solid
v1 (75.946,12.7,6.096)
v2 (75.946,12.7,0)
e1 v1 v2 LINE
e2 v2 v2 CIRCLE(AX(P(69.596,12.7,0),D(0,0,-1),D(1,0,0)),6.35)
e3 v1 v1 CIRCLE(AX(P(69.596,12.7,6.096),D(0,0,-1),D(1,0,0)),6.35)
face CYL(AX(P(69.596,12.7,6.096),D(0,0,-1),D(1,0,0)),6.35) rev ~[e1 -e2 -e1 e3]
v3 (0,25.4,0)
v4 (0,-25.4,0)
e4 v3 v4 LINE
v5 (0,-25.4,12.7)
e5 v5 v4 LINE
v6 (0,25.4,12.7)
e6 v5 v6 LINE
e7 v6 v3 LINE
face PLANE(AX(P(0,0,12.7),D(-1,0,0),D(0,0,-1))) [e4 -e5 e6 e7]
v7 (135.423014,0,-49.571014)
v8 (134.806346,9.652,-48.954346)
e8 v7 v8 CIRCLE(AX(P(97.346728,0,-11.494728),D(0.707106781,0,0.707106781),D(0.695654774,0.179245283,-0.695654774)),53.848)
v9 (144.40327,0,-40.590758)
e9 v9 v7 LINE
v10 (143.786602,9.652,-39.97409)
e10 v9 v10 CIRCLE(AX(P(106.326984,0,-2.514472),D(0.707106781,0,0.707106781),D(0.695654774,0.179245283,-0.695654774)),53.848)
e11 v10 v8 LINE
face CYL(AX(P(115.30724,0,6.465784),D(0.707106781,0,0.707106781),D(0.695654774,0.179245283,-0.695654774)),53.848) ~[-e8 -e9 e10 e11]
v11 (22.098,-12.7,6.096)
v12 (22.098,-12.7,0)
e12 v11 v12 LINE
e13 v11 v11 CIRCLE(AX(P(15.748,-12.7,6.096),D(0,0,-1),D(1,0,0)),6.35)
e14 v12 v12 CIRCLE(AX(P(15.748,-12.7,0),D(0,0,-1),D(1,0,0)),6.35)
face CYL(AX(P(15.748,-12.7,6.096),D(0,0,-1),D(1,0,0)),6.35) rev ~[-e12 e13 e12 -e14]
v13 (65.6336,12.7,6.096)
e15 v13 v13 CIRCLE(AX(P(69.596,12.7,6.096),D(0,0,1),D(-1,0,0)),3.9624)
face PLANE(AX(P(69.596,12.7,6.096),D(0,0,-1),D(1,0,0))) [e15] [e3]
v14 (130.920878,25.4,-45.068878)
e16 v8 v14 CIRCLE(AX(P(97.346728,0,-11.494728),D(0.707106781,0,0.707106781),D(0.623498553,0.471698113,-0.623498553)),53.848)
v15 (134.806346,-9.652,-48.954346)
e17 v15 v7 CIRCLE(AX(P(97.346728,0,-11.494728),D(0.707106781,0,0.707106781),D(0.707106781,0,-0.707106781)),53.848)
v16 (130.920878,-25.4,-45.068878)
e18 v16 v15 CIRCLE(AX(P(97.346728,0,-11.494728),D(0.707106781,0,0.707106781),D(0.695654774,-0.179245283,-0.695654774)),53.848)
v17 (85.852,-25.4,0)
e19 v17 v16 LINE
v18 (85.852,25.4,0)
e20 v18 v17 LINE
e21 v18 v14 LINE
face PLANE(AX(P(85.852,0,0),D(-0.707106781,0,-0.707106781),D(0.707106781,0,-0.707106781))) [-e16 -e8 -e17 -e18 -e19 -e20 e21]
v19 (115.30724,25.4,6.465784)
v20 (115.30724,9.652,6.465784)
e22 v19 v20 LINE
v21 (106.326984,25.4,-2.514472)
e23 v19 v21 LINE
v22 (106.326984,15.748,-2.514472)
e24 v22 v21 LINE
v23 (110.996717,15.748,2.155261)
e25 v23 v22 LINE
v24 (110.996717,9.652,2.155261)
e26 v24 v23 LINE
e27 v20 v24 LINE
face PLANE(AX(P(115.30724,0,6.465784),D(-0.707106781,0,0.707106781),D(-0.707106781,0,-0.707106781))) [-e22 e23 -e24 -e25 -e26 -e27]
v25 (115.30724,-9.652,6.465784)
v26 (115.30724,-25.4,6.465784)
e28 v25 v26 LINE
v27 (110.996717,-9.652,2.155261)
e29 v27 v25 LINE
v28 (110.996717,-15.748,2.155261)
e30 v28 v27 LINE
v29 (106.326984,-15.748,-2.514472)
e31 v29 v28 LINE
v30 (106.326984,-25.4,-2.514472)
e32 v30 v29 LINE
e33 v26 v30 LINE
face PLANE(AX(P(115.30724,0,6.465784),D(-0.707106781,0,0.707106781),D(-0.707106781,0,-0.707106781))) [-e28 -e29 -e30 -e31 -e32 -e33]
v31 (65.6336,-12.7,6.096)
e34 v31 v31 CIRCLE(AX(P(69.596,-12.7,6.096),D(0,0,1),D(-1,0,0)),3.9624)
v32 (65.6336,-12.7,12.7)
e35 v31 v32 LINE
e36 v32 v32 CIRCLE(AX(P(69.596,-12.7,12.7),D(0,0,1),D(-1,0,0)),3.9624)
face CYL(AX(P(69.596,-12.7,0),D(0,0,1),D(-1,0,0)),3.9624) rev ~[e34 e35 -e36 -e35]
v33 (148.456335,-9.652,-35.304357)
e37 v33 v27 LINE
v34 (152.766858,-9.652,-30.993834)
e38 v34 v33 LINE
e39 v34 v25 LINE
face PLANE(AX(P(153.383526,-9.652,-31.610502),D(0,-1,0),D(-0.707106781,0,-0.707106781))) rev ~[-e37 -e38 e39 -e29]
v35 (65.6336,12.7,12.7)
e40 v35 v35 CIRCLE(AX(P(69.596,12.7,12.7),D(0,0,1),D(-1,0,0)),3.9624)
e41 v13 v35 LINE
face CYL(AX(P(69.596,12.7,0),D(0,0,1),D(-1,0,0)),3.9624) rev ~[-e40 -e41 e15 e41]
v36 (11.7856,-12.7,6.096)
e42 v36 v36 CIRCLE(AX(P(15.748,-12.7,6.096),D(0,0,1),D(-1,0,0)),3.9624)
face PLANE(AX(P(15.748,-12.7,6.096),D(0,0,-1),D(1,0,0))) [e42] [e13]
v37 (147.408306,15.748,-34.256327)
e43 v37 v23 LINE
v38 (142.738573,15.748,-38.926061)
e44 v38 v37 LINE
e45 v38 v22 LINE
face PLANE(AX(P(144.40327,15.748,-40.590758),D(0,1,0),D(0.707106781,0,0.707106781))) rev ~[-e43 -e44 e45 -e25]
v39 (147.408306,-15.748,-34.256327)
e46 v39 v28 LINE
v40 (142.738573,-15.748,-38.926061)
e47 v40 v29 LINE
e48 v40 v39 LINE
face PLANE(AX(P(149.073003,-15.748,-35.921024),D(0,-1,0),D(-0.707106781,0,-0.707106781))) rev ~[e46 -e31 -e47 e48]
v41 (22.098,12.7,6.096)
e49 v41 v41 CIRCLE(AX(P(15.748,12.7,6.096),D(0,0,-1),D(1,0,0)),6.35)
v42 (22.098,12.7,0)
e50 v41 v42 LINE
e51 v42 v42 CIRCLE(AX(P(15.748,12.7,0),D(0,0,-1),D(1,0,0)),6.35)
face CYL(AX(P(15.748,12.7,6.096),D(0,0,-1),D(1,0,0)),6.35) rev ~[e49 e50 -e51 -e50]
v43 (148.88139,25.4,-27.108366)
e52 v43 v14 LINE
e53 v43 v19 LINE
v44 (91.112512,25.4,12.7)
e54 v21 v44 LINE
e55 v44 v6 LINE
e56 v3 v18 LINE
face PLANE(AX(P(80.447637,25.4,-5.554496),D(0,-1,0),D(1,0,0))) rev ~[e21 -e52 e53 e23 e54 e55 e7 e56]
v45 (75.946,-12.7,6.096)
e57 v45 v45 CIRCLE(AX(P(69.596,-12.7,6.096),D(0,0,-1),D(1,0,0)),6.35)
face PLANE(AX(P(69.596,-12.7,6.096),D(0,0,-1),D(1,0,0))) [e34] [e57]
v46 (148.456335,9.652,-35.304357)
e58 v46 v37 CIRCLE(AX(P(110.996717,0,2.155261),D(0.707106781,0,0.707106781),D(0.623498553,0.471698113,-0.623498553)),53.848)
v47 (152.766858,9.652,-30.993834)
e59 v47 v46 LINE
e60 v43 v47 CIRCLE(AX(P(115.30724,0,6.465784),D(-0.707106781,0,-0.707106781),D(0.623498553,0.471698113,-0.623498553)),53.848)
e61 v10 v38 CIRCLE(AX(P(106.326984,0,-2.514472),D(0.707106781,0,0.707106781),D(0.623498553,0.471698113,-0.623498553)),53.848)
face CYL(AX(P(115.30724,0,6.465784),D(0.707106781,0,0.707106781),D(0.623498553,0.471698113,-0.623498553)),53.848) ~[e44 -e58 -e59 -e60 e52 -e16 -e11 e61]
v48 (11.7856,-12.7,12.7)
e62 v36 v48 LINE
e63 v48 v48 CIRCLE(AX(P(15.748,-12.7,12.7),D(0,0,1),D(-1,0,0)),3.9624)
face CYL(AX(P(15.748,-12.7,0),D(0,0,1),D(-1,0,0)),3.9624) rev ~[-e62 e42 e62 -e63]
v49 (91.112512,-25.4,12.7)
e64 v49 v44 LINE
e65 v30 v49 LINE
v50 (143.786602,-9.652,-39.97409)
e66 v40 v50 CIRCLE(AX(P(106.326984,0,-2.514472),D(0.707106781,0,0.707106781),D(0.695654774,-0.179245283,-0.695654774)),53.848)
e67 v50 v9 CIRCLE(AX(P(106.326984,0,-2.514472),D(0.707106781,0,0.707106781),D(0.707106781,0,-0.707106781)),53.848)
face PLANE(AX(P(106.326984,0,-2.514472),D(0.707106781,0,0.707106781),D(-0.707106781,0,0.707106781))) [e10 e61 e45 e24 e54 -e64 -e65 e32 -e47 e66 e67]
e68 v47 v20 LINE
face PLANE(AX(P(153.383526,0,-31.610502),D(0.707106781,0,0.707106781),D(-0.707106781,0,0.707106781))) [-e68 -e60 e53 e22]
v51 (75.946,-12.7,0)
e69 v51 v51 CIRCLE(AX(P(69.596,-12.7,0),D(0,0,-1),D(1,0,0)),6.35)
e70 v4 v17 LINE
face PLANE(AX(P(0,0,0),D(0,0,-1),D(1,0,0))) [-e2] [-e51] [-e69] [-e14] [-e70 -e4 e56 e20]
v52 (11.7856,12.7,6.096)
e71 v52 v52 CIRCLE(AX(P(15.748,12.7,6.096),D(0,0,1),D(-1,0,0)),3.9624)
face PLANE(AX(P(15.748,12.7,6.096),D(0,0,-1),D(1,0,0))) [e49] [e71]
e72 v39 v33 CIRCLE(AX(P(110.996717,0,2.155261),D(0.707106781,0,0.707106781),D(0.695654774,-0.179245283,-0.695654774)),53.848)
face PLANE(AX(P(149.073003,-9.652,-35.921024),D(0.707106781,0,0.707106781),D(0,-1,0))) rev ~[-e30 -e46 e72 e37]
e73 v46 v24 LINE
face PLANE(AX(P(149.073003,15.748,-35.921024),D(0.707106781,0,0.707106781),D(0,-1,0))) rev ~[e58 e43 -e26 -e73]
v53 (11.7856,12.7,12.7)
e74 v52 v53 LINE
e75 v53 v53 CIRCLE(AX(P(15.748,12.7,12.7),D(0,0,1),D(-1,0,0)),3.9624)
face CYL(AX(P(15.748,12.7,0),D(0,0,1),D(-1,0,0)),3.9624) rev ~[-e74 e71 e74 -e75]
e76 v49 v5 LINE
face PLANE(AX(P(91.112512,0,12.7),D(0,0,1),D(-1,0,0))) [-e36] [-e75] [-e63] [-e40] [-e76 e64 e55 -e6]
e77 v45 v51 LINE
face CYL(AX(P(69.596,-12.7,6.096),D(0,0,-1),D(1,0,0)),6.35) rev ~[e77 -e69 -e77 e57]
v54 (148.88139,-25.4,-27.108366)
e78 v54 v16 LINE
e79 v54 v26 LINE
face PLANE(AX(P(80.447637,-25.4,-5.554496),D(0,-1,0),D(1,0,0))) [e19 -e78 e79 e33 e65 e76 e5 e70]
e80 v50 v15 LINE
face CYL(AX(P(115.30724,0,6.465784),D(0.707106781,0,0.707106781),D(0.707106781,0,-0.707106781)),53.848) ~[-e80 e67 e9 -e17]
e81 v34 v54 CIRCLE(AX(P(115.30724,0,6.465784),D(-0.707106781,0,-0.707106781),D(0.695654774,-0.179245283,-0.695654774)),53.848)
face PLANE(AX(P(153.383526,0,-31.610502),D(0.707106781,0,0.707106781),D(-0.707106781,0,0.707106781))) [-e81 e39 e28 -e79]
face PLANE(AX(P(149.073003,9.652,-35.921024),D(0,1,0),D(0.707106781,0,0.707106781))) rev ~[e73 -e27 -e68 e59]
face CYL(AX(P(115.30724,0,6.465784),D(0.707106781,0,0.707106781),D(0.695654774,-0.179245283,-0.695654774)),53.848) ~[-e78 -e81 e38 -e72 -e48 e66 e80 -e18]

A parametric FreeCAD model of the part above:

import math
import FreeCAD as App
import Part
import Sketcher
Q = App.Units.Quantity

doc = App.newDocument("Part")
body = doc.addObject("PartDesign::Body", "Body")

sketch1 = body.newObject("Sketcher::SketchObject", "Sketch")
sketch1.AttachmentSupport = (doc.getObject("XZ_Plane"), [""])
sketch1.MapMode = "FlatFace"
sketch1.addGeometry([
    Part.LineSegment(App.Vector(0, 12.7, 0), App.Vector(0, 0, 0)),
    Part.LineSegment(App.Vector(0, 0, 0), App.Vector(85.852, 0, 0)),
    Part.LineSegment(App.Vector(85.852, 0, 0), App.Vector(135.423014, -49.571014, 0)),
    Part.LineSegment(App.Vector(135.423014, -49.571014, 0), App.Vector(153.383526, -31.610502, 0)),
    Part.LineSegment(App.Vector(153.383526, -31.610502, 0), App.Vector(115.30724, 6.465784, 0)),
    Part.LineSegment(App.Vector(115.30724, 6.465784, 0), App.Vector(106.326984, -2.514472, 0)),
    Part.LineSegment(App.Vector(106.326984, -2.514472, 0), App.Vector(91.112512, 12.7, 0)),
    Part.LineSegment(App.Vector(91.112512, 12.7, 0), App.Vector(0, 12.7, 0)),
], False)
sketch1.addConstraint([
    Sketcher.Constraint("Coincident", 0, 2, 1, 1),
    Sketcher.Constraint("Coincident", 1, 2, 2, 1),
    Sketcher.Constraint("Coincident", 2, 2, 3, 1),
    Sketcher.Constraint("Coincident", 3, 2, 4, 1),
    Sketcher.Constraint("Coincident", 4, 2, 5, 1),
    Sketcher.Constraint("Coincident", 5, 2, 6, 1),
    Sketcher.Constraint("Coincident", 6, 2, 7, 1),
    Sketcher.Constraint("Coincident", 7, 2, 0, 1),
    Sketcher.Constraint("Vertical", 0),
    Sketcher.Constraint("Horizontal", 1),
    Sketcher.Constraint("Horizontal", 7),
    Sketcher.Constraint("Coincident", 0, 2, -1, 1),
    Sketcher.Constraint("Perpendicular", 2, 3),
    Sketcher.Constraint("Perpendicular", 3, 4),
    Sketcher.Constraint("Perpendicular", 4, 5),
    Sketcher.Constraint("Perpendicular", 5, 6),
    Sketcher.Constraint("Distance", 3, Q("1 in")),
    Sketcher.Constraint("DistanceY", 0, 2, 0, 1, Q("0.5 in")),
    Sketcher.Constraint("Angle", 2, Q("-45 deg")),
    Sketcher.Constraint("Distance", 5, Q("0.5 in")),
    Sketcher.Constraint("DistanceX", 1, 1, 1, 2, Q("3.38 in")),
    Sketcher.Constraint("Distance", 2, Q("2.76 in")),
    Sketcher.Constraint("Distance", 4, Q("2.12 in")),
])
pad1 = body.newObject("PartDesign::Pad", "Pad")
pad1.Profile = sketch1
pad1.Length = Q("2 in")
pad1.Midplane = True

sketch2 = body.newObject("Sketcher::SketchObject", "Sketch001")
sketch2.AttachmentSupport = (doc.getObject("XY_Plane"), [""])
sketch2.MapMode = "FlatFace"
sketch2.addGeometry([
    Part.Circle(App.Vector(15.748, -12.7, 0), App.Vector(0, 0, 1), 3.9624),
    Part.Circle(App.Vector(15.748, 12.7, 0), App.Vector(0, 0, 1), 3.9624),
    Part.Circle(App.Vector(69.596, -12.7, 0), App.Vector(0, 0, 1), 3.9624),
    Part.Circle(App.Vector(69.596, 12.7, 0), App.Vector(0, 0, 1), 3.9624),
], False)
sketch2.addConstraint([
    Sketcher.Constraint("Equal", 0, 1),
    Sketcher.Constraint("Equal", 1, 2),
    Sketcher.Constraint("Equal", 2, 3),
    Sketcher.Constraint("Symmetric", 0, 3, 1, 3, -1),
    Sketcher.Constraint("Symmetric", 2, 3, 3, 3, -1),
    Sketcher.Constraint("Horizontal", 0, 3, 2, 3),
    Sketcher.Constraint("Diameter", 0, Q("0.312 in")),
    Sketcher.Constraint("DistanceY", 0, 3, 1, 3, Q("1 in")),
    Sketcher.Constraint("DistanceX", -1, 1, 0, 3, Q("0.62 in")),
    Sketcher.Constraint("DistanceX", -1, 1, 2, 3, Q("2.74 in")),
])
doc.recompute()
hole = body.newObject("PartDesign::Hole", "Hole")
hole.Profile = sketch2
hole.ThreadType = "None"
hole.Diameter = Q("0.312 in")
hole.DepthType = "ThroughAll"
hole.HoleCutType = "Counterbore"
hole.HoleCutDiameter = Q("0.5 in")
hole.HoleCutDepth = Q("0.24 in")
hole.Reversed = True

sketch3 = body.newObject("Sketcher::SketchObject", "Sketch002")
sketch3.Placement = App.Placement(App.Vector(92.497014, 0, -92.497014), App.Rotation(App.Vector(0, 1, 0), App.Vector(0.707106781, 0, 0.707106781), App.Vector(0.707106781, 0, -0.707106781), "ZXY"))
sketch3.addGeometry([
    Part.LineSegment(App.Vector(9.652, 86.106531, 0), App.Vector(-9.652, 86.106531, 0)),
    Part.LineSegment(App.Vector(-9.652, 86.106531, 0), App.Vector(-9.652, 80.010531, 0)),
    Part.LineSegment(App.Vector(-9.652, 80.010531, 0), App.Vector(-15.748, 80.010531, 0)),
    Part.LineSegment(App.Vector(-15.748, 80.010531, 0), App.Vector(-15.748, 73.406531, 0)),
    Part.LineSegment(App.Vector(-15.748, 73.406531, 0), App.Vector(15.748, 73.406531, 0)),
    Part.LineSegment(App.Vector(15.748, 73.406531, 0), App.Vector(15.748, 80.010531, 0)),
    Part.LineSegment(App.Vector(15.748, 80.010531, 0), App.Vector(9.652, 80.010531, 0)),
    Part.LineSegment(App.Vector(9.652, 80.010531, 0), App.Vector(9.652, 86.106531, 0)),
], False)
sketch3.addConstraint([
    Sketcher.Constraint("Coincident", 0, 2, 1, 1),
    Sketcher.Constraint("Coincident", 1, 2, 2, 1),
    Sketcher.Constraint("Coincident", 2, 2, 3, 1),
    Sketcher.Constraint("Coincident", 3, 2, 4, 1),
    Sketcher.Constraint("Coincident", 4, 2, 5, 1),
    Sketcher.Constraint("Coincident", 5, 2, 6, 1),
    Sketcher.Constraint("Coincident", 6, 2, 7, 1),
    Sketcher.Constraint("Coincident", 7, 2, 0, 1),
    Sketcher.Constraint("Horizontal", 0),
    Sketcher.Constraint("Vertical", 1),
    Sketcher.Constraint("Horizontal", 2),
    Sketcher.Constraint("Vertical", 3),
    Sketcher.Constraint("Horizontal", 4),
    Sketcher.Constraint("Vertical", 5),
    Sketcher.Constraint("Horizontal", 6),
    Sketcher.Constraint("Vertical", 7),
    Sketcher.Constraint("Symmetric", 2, 2, 5, 2, -2),
    Sketcher.Constraint("Equal", 2, 6),
    Sketcher.Constraint("Equal", 6, 1),
    Sketcher.Constraint("DistanceX", 1, 2, 4, 2, Q("1 in")),
    Sketcher.Constraint("DistanceX", 0, 2, 0, 1, Q("0.76 in")),
    Sketcher.Constraint("DistanceY", 3, 2, 3, 1, Q("0.26 in")),
    Sketcher.Constraint("DistanceY", -1, 1, 0, 2, Q("86.106531 mm")),
])
pocket1 = body.newObject("PartDesign::Pocket", "Pocket")
pocket1.Profile = sketch3
pocket1.Type = "ThroughAll"

sketch4 = body.newObject("Sketcher::SketchObject", "Sketch003")
sketch4.Placement = App.Placement(App.Vector(60.886512, 0, 60.886512), App.Rotation(App.Vector(0.707106781, 0, -0.707106781), App.Vector(0, 0.999999999, 0), App.Vector(0.707106781, 0, 0.707106781), "ZXY"))
sketch4.addGeometry([
    Part.ArcOfCircle(Part.Circle(App.Vector(76.962531, 0, 0), App.Vector(0, 0, 1), 53.848), math.radians(-28.144581), math.radians(-10.325803)),
    Part.LineSegment(App.Vector(124.44355, -25.4, 0), App.Vector(130.810531, -25.4, 0)),
    Part.LineSegment(App.Vector(130.810531, -25.4, 0), App.Vector(130.810531, 0, 0)),
    Part.ArcOfCircle(Part.Circle(App.Vector(76.962531, 0, 0), App.Vector(0, 0, 1), 53.848), math.radians(-10.325803), math.radians(0)),
    Part.LineSegment(App.Vector(130.810531, 25.4, 0), App.Vector(124.44355, 25.4, 0)),
    Part.ArcOfCircle(Part.Circle(App.Vector(76.962531, 0, 0), App.Vector(0, 0, 1), 53.848), math.radians(10.325803), math.radians(28.144581)),
    Part.ArcOfCircle(Part.Circle(App.Vector(76.962531, 0, 0), App.Vector(0, 0, 1), 53.848), math.radians(0), math.radians(10.325803)),
    Part.LineSegment(App.Vector(130.810531, 0, 0), App.Vector(130.810531, 25.4, 0)),
], False)
sketch4.addConstraint([
    Sketcher.Constraint("Coincident", 0, 1, 1, 1),
    Sketcher.Constraint("Coincident", 1, 2, 2, 1),
    Sketcher.Constraint("Tangent", 2, 2, 3, 2),
    Sketcher.Constraint("Tangent", 3, 1, 0, 2),
    Sketcher.Constraint("Coincident", 4, 2, 5, 2),
    Sketcher.Constraint("Tangent", 5, 1, 6, 2),
    Sketcher.Constraint("Tangent", 6, 1, 7, 1),
    Sketcher.Constraint("Coincident", 7, 2, 4, 1),
    Sketcher.Constraint("Horizontal", 1),
    Sketcher.Constraint("Vertical", 2),
    Sketcher.Constraint("Horizontal", 4),
    Sketcher.Constraint("Vertical", 7),
    Sketcher.Constraint("Coincident", 5, 3, 0, 3),
    Sketcher.Constraint("Coincident", 6, 1, 2, 2),
    Sketcher.Constraint("Equal", 0, 3),
    Sketcher.Constraint("Symmetric", 0, 1, 4, 2, -1),
    Sketcher.Constraint("Vertical", 3, 1, 5, 1),
    Sketcher.Constraint("DistanceY", 2, 1, 2, 2, Q("1 in")),
    Sketcher.Constraint("Radius", 0, Q("2.12 in")),
    Sketcher.Constraint("DistanceY", 3, 1, -1, 1, Q("0.38 in")),
    Sketcher.Constraint("DistanceX", -1, 1, 0, 3, Q("76.962531 mm")),
])
pocket2 = body.newObject("PartDesign::Pocket", "Pocket001")
pocket2.Profile = sketch4
pocket2.Type = "ThroughAll"

doc.recompute()
